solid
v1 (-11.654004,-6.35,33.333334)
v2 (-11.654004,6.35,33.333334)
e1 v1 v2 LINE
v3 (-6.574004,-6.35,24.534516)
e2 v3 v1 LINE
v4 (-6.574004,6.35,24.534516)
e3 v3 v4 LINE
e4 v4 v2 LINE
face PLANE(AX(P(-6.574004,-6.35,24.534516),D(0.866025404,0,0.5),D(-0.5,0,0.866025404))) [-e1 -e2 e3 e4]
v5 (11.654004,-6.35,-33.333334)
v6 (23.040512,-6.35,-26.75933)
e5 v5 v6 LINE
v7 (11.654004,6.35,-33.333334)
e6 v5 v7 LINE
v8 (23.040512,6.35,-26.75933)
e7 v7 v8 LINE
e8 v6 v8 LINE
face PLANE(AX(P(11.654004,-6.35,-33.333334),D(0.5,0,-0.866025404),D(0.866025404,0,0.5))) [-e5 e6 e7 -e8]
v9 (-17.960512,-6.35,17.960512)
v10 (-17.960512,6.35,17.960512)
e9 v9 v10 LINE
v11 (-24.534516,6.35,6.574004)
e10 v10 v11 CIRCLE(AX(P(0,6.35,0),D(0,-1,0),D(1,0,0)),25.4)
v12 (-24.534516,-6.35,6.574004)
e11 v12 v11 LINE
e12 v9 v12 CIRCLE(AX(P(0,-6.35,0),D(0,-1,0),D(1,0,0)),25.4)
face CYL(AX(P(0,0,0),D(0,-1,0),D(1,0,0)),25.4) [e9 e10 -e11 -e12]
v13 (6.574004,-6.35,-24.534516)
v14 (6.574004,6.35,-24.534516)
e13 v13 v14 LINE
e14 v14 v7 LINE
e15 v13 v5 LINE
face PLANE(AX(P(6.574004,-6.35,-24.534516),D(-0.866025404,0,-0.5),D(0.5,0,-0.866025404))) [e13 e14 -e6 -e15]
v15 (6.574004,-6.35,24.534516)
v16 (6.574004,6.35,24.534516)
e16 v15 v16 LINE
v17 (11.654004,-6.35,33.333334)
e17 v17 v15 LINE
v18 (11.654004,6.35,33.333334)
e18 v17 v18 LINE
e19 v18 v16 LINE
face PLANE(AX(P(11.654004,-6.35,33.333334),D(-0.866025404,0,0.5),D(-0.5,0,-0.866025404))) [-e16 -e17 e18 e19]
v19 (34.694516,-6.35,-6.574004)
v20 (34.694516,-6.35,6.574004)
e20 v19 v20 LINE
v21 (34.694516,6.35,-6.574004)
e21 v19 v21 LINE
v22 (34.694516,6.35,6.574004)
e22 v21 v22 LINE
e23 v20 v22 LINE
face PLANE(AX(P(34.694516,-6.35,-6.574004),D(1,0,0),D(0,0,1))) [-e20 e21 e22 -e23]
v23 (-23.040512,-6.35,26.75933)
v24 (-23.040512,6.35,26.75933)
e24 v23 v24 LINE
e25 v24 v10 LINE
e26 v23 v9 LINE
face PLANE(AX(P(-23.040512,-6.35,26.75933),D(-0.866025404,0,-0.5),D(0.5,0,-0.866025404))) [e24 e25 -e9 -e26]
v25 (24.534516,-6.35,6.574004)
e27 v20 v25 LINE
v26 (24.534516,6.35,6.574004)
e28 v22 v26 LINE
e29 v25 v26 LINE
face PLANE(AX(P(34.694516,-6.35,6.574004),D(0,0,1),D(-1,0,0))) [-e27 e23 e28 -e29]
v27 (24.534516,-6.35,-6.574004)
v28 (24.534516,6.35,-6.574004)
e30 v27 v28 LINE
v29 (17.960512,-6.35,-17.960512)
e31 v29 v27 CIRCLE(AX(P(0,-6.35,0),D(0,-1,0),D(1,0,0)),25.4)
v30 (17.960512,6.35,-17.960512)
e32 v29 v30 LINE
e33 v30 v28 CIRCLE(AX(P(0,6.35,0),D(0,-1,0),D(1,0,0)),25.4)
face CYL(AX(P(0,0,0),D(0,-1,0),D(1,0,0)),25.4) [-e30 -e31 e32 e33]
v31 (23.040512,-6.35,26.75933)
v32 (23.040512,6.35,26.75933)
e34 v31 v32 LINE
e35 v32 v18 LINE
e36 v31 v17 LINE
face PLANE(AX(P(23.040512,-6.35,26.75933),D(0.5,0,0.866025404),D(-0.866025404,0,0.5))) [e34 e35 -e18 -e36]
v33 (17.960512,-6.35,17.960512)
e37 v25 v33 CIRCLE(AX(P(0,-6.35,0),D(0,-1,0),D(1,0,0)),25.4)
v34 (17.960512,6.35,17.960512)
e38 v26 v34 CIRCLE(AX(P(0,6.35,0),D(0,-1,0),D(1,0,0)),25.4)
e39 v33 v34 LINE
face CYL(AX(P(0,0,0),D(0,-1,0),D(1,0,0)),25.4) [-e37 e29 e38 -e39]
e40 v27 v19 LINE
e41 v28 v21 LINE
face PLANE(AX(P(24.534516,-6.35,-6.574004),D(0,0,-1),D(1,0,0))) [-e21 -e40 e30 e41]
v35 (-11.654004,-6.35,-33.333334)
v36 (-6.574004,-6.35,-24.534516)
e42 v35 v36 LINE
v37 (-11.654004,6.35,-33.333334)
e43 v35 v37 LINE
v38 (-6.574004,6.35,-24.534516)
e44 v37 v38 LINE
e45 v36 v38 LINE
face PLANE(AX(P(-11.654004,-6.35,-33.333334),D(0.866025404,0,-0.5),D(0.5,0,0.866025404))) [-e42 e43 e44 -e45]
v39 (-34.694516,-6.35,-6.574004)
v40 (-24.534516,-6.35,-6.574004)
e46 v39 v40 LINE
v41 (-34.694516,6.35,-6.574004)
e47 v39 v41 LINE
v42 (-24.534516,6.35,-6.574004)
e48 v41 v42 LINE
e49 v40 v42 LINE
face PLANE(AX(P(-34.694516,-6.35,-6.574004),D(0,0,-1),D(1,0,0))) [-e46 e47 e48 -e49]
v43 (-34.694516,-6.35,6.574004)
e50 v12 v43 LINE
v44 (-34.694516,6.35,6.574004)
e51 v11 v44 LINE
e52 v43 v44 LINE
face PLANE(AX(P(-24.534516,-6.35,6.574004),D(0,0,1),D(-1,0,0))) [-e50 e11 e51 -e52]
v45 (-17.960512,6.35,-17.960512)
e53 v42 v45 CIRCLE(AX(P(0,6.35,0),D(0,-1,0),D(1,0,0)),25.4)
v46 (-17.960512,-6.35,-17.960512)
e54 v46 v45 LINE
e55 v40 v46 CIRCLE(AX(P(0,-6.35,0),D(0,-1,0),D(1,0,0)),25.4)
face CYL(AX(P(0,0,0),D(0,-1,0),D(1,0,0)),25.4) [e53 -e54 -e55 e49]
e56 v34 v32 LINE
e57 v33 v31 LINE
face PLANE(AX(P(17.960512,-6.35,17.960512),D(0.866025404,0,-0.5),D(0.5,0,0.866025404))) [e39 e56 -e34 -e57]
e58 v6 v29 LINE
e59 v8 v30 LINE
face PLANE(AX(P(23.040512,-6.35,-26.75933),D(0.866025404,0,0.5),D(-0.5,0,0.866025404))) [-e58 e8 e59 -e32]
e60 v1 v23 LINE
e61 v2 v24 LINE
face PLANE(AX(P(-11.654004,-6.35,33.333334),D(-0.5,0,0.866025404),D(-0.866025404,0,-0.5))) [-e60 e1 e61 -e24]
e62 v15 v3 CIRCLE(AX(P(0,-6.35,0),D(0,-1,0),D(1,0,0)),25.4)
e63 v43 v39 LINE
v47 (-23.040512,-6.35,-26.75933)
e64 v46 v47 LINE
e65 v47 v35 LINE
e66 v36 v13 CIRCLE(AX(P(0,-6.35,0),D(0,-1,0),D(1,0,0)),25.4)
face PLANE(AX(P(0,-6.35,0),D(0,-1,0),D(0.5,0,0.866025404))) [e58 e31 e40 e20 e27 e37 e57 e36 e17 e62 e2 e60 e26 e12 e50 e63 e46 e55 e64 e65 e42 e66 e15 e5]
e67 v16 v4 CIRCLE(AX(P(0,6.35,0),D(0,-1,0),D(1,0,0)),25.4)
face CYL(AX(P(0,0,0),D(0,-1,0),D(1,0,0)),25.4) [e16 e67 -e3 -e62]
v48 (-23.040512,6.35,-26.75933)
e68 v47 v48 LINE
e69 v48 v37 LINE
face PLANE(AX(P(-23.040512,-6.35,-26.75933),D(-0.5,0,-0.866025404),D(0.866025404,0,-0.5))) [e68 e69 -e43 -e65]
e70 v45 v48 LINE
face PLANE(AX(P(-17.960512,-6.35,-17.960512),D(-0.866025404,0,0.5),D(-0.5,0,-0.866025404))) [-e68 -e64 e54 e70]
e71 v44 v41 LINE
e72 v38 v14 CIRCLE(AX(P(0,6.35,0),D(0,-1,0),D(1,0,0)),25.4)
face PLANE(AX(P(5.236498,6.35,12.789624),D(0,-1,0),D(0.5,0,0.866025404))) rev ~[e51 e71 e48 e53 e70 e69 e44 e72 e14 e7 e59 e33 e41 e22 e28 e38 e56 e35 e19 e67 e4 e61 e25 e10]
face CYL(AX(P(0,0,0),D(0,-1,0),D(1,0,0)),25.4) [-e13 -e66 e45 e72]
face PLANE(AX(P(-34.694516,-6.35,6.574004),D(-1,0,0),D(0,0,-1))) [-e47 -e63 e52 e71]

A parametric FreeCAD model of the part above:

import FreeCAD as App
import Part
import Sketcher
Q = App.Units.Quantity

doc = App.newDocument("Part")
body = doc.addObject("PartDesign::Body", "Body")

# Sketch on XZ plane
sketch1 = body.newObject("Sketcher::SketchObject", "Sketch")
sketch1.AttachmentSupport = (doc.getObject("XZ_Plane"), [""])
sketch1.MapMode = "FlatFace"
sketch1.addGeometry(Part.Circle(App.Vector(0, 0, 0), App.Vector(0, 0, 1), 25.4), False)
sketch1.addConstraint([
    Sketcher.Constraint("Coincident", 0, 3, -1, 1),
    Sketcher.Constraint("Diameter", 0, Q("2 in")),
])
pad1 = body.newObject("PartDesign::Pad", "Pad")
pad1.Profile = sketch1
pad1.Length = Q("0.5 in")
pad1.Midplane = True

# Sketch on XZ plane
sketch2 = body.newObject("Sketcher::SketchObject", "Sketch001")
sketch2.AttachmentSupport = (doc.getObject("XZ_Plane"), [""])
sketch2.MapMode = "FlatFace"
sketch2.AttachmentOffset = App.Placement(App.Vector(0, 0, 0.25 * 25.4), App.Rotation())
sketch2.addGeometry([
    Part.LineSegment(App.Vector(24.534516, 6.574004, 0), App.Vector(0, 0, 0)),  # 0
    Part.LineSegment(App.Vector(0, 0, 0), App.Vector(24.534516, -6.574004, 0)),  # 1
    Part.LineSegment(App.Vector(24.534516, -6.574004, 0), App.Vector(34.694516, -6.574004, 0)),  # 2
    Part.LineSegment(App.Vector(34.694516, -6.574004, 0), App.Vector(34.694516, 6.574004, 0)),  # 3
    Part.LineSegment(App.Vector(34.694516, 6.574004, 0), App.Vector(24.534516, 6.574004, 0)),  # 4
], False)
sketch2.addConstraint([
    Sketcher.Constraint("Coincident", 0, 2, 1, 1),
    Sketcher.Constraint("Coincident", 1, 2, 2, 1),
    Sketcher.Constraint("Coincident", 2, 2, 3, 1),
    Sketcher.Constraint("Coincident", 3, 2, 4, 1),
    Sketcher.Constraint("Coincident", 4, 2, 0, 1),
    Sketcher.Constraint("Horizontal", 2),
    Sketcher.Constraint("Vertical", 3),
    Sketcher.Constraint("Horizontal", 4),
    Sketcher.Constraint("Coincident", 0, 2, -1, 1),
    Sketcher.Constraint("Symmetric", 1, 2, 4, 2, -1),
    Sketcher.Constraint("Distance", 0, Q("1 in")),
    Sketcher.Constraint("DistanceX", 2, 1, 2, 2, Q("0.4 in")),
    Sketcher.Constraint("Angle", 0, Q("-164.999999 deg")),
])
pad2 = body.newObject("PartDesign::Pad", "Pad001")
pad2.Profile = sketch2
pad2.Length = Q("0.5 in")
pad2.Reversed = True
body2 = doc.addObject("PartDesign::Body", "Body001")
doc.recompute()

body2.BaseFeature = body
doc.recompute()

body3 = doc.addObject("PartDesign::Body", "Body002")
body3.BaseFeature = body
body3.Placement = App.Placement(App.Vector(0, 0, 0), App.Rotation(App.Vector(0, 1, 0), 60))
boolean = body2.newObject("PartDesign::Boolean", "Boolean")
boolean.Type = "Fuse"
boolean.addObjects([body3])
doc.recompute()

body4 = doc.addObject("PartDesign::Body", "Body003")
body4.BaseFeature = body
body4.Placement = App.Placement(App.Vector(0, 0, 0), App.Rotation(App.Vector(0, 1, 0), 120))
boolean2 = body2.newObject("PartDesign::Boolean", "Boolean001")
boolean2.Type = "Fuse"
boolean2.addObjects([body4])
doc.recompute()

body5 = doc.addObject("PartDesign::Body", "Body004")
body5.BaseFeature = body
body5.Placement = App.Placement(App.Vector(0, 0, 0), App.Rotation(App.Vector(0, 1, 0), 180))
boolean3 = body2.newObject("PartDesign::Boolean", "Boolean002")
boolean3.Type = "Fuse"
boolean3.addObjects([body5])
doc.recompute()

body6 = doc.addObject("PartDesign::Body", "Body005")
body6.BaseFeature = body
body6.Placement = App.Placement(App.Vector(0, 0, 0), App.Rotation(App.Vector(0, 1, 0), 240))
boolean4 = body2.newObject("PartDesign::Boolean", "Boolean003")
boolean4.Type = "Fuse"
boolean4.addObjects([body6])
doc.recompute()

body.Placement = App.Placement(App.Vector(0, 0, 0), App.Rotation(App.Vector(0, 1, 0), 300))
boolean5 = body2.newObject("PartDesign::Boolean", "Boolean004")
boolean5.Type = "Fuse"
boolean5.addObjects([body])

doc.recompute()
